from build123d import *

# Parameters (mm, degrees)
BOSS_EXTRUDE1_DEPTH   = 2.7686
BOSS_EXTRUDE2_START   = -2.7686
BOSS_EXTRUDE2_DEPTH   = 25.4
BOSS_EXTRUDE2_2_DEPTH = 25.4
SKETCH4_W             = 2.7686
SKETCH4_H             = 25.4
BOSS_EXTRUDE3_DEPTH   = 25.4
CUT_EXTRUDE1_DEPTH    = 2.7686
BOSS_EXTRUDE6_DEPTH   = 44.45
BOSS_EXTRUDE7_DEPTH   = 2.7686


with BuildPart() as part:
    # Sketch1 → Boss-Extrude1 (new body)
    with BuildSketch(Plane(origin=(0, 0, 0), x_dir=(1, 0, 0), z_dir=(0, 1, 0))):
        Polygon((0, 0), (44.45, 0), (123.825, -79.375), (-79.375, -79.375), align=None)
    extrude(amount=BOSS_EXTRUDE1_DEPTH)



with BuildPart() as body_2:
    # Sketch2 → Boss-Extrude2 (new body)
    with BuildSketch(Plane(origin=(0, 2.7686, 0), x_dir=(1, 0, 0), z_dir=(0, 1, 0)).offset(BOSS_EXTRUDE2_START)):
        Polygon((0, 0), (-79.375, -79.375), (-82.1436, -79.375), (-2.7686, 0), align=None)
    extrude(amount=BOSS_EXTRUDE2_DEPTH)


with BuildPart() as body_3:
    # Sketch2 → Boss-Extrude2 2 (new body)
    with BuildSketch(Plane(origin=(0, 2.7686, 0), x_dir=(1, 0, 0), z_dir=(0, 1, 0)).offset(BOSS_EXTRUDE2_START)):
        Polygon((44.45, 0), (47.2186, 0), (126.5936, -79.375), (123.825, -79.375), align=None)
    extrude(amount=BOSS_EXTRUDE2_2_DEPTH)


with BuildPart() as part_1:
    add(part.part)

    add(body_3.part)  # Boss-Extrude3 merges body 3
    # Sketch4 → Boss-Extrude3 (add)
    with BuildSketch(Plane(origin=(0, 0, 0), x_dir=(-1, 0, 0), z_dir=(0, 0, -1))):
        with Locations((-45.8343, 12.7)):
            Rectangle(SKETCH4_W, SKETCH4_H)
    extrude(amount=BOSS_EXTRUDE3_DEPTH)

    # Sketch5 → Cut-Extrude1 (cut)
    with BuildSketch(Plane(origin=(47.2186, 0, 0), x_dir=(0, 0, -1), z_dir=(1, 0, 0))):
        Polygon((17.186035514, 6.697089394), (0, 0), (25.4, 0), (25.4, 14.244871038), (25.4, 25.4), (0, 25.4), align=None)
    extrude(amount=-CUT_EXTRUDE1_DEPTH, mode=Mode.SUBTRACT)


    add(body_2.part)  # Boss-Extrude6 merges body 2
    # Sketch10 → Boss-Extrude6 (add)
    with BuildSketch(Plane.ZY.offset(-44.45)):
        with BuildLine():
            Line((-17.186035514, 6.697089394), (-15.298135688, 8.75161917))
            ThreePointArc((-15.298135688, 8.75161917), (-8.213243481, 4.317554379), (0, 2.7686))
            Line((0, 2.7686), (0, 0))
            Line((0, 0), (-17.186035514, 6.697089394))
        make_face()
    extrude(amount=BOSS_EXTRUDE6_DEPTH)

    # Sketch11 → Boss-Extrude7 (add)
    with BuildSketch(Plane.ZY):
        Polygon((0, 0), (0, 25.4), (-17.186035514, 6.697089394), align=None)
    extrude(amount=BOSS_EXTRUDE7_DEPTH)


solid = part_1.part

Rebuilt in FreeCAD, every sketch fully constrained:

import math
import FreeCAD as App
import Part
import Sketcher

V = App.Vector
Q = App.Units.Quantity


def add_polygon(sketch, points):
    """Adds a closed chain of lines whose ends are joined by coincident constraints."""
    first, n = sketch.GeometryCount, len(points)
    for a, b in zip(points, points[1:] + points[:1]):
        sketch.addGeometry(Part.LineSegment(App.Vector(*a, 0), App.Vector(*b, 0)), False)
    for i in range(n):
        sketch.addConstraint(Sketcher.Constraint("Coincident", first + i, 2, first + (i + 1) % n, 1))

doc = App.newDocument("Part")
body = doc.addObject("PartDesign::Body", "Body")

sketch1 = body.newObject("Sketcher::SketchObject", "Sketch")
sketch1.AttachmentSupport = (doc.getObject("XZ_Plane"), [""])
sketch1.MapMode = "FlatFace"
add_polygon(sketch1, [(44, 0), (0, 0), (-79, 79), (124, 79)])
sketch1.addConstraint(Sketcher.Constraint("Horizontal", 0))
sketch1.addConstraint(Sketcher.Constraint("Horizontal", 2))
sketch1.addConstraint(Sketcher.Constraint("Coincident", 0, 2, -1, 1))
sketch1.addConstraint(Sketcher.Constraint("Perpendicular", 1, 3))
sketch1.addConstraint(Sketcher.Constraint("Equal", 1, 3))
sketch1.addConstraint(Sketcher.Constraint("DistanceX", 2, 1, 2, 2, Q("8 in")))
sketch1.addConstraint(Sketcher.Constraint("DistanceX", 0, 2, 0, 1, Q("1.75 in")))
pad1 = body.newObject("PartDesign::Pad", "Pad")
pad1.Profile = sketch1
pad1.Length = Q("0.109 in")
pad1.Reversed = True
body2 = doc.addObject("PartDesign::Body", "Body001")

sketch2 = body2.newObject("Sketcher::SketchObject", "Sketch001")
sketch2.AttachmentSupport = (doc.getObject("XZ_Plane001"), [""])
sketch2.MapMode = "FlatFace"
add_polygon(sketch2, [(-79.4, 79.4), (0, 0), (-2.8, 0), (-82.1, 79.4)])
sketch2.addConstraint(Sketcher.Constraint("Horizontal", 1))
sketch2.addConstraint(Sketcher.Constraint("Horizontal", 3))
sketch2.addConstraint(Sketcher.Constraint("Coincident", 0, 2, -1, 1))
sketch2.addConstraint(Sketcher.Constraint("Parallel", 0, 2))
sketch2.addConstraint(Sketcher.Constraint("Angle", 0, Q("-45 deg")))
sketch2.addConstraint(Sketcher.Constraint("DistanceX", 1, 2, 1, 1, Q("0.109 in")))
sketch2.addConstraint(Sketcher.Constraint("DistanceX", 2, 2, -1, 1, Q("3.234 in")))
pad2 = body2.newObject("PartDesign::Pad", "Pad001")
pad2.Profile = sketch2
pad2.Length = Q("1 in")
pad2.Reversed = True
body3 = doc.addObject("PartDesign::Body", "Body002")

sketch3 = body3.newObject("Sketcher::SketchObject", "Sketch002")
sketch3.AttachmentSupport = (doc.getObject("XZ_Plane002"), [""])
sketch3.MapMode = "FlatFace"
add_polygon(sketch3, [(47.2, 0), (44.5, 0), (123.8, 79.4), (126.6, 79.4)])
sketch3.addConstraint(Sketcher.Constraint("Horizontal", 0))
sketch3.addConstraint(Sketcher.Constraint("Horizontal", 2))
sketch3.addConstraint(Sketcher.Constraint("PointOnObject", 0, 2, -1))
sketch3.addConstraint(Sketcher.Constraint("Parallel", 1, 3))
sketch3.addConstraint(Sketcher.Constraint("Angle", 1, Q("45 deg")))
sketch3.addConstraint(Sketcher.Constraint("DistanceX", 0, 2, 0, 1, Q("0.109 in")))
sketch3.addConstraint(Sketcher.Constraint("DistanceX", -1, 1, 0, 2, Q("1.75 in")))
sketch3.addConstraint(Sketcher.Constraint("DistanceX", -1, 1, 1, 2, Q("4.875 in")))
pad3 = body3.newObject("PartDesign::Pad", "Pad002")
pad3.Profile = sketch3
pad3.Length = Q("1 in")
pad3.Reversed = True
doc.recompute()

boolean = body.newObject("PartDesign::Boolean", "Boolean")
boolean.Type = "Fuse"
boolean.addObjects([body3])

sketch4 = body.newObject("Sketcher::SketchObject", "Sketch003")
sketch4.AttachmentSupport = (doc.getObject("XY_Plane"), [""])
sketch4.MapMode = "FlatFace"
add_polygon(sketch4, [(47.2, 25.4), (47.2, 0), (44.5, 0), (44.5, 25.4)])
sketch4.addConstraint(Sketcher.Constraint("Vertical", 0))
sketch4.addConstraint(Sketcher.Constraint("Horizontal", 1))
sketch4.addConstraint(Sketcher.Constraint("Vertical", 2))
sketch4.addConstraint(Sketcher.Constraint("Horizontal", 3))
sketch4.addConstraint(Sketcher.Constraint("PointOnObject", 0, 2, -1))
sketch4.addConstraint(Sketcher.Constraint("DistanceY", 0, 2, 0, 1, Q("1 in")))
sketch4.addConstraint(Sketcher.Constraint("DistanceX", 1, 2, 1, 1, Q("0.109 in")))
sketch4.addConstraint(Sketcher.Constraint("DistanceX", -1, 1, 1, 2, Q("1.75 in")))
pad4 = body.newObject("PartDesign::Pad", "Pad003")
pad4.Profile = sketch4
pad4.Length = Q("1 in")
pad4.Reversed = True

sketch5 = body.newObject("Sketcher::SketchObject", "Sketch004")
sketch5.AttachmentSupport = (doc.getObject("YZ_Plane"), [""])
sketch5.MapMode = "FlatFace"
sketch5.AttachmentOffset = App.Placement(V(0, 0, 1.859 * 25.4), App.Rotation())
add_polygon(sketch5, [(7, -17), (0, 0), (0, -25), (25, -25), (25, 0)])
sketch5.addConstraint(Sketcher.Constraint("Vertical", 1))
sketch5.addConstraint(Sketcher.Constraint("Horizontal", 2))
sketch5.addConstraint(Sketcher.Constraint("Vertical", 3))
sketch5.addConstraint(Sketcher.Constraint("Coincident", 0, 2, -1, 1))
sketch5.addConstraint(Sketcher.Constraint("PointOnObject", 3, 2, -1))
sketch5.addConstraint(Sketcher.Constraint("Equal", 2, 1))
sketch5.addConstraint(Sketcher.Constraint("DistanceX", 2, 1, 2, 2, Q("1 in")))
sketch5.addConstraint(Sketcher.Constraint("DistanceX", -1, 1, 4, 2, 6.697089))
sketch5.addConstraint(Sketcher.Constraint("Distance", 0, 18.444805))
pocket1 = body.newObject("PartDesign::Pocket", "Pocket")
pocket1.Profile = sketch5
pocket1.Length = Q("0.109 in")
doc.recompute()

boolean2 = body.newObject("PartDesign::Boolean", "Boolean001")
boolean2.Type = "Fuse"
boolean2.addObjects([body2])

sketch6 = body.newObject("Sketcher::SketchObject", "Sketch005")
sketch6.AttachmentSupport = (doc.getObject("YZ_Plane"), [""])
sketch6.MapMode = "FlatFace"
sketch6.AttachmentOffset = App.Placement(V(0, 0, 1.75 * 25.4), App.Rotation())
sketch6.addGeometry(Part.LineSegment(V(8.8, -15.3, 0), V(6.7, -17.2, 0)), False)
sketch6.addGeometry(Part.LineSegment(V(6.7, -17.2, 0), V(0, 0, 0)), False)
sketch6.addGeometry(Part.LineSegment(V(0, 0, 0), V(2.8, 0, 0)), False)
sketch6.addGeometry(Part.ArcOfCircle(Part.Circle(V(25.3, 0, 0), V(0, 0, 1), 22.5), math.radians(180), math.radians(223)), False)
sketch6.addConstraint(Sketcher.Constraint("Coincident", 0, 2, 1, 1))
sketch6.addConstraint(Sketcher.Constraint("Coincident", 1, 2, 2, 1))
sketch6.addConstraint(Sketcher.Constraint("Coincident", 2, 2, 3, 1))
sketch6.addConstraint(Sketcher.Constraint("Coincident", 3, 2, 0, 1))
sketch6.addConstraint(Sketcher.Constraint("Horizontal", 2))
sketch6.addConstraint(Sketcher.Constraint("Coincident", 1, 2, -1, 1))
sketch6.addConstraint(Sketcher.Constraint("PointOnObject", 3, 3, -1))
sketch6.addConstraint(Sketcher.Constraint("DistanceX", 2, 1, 2, 2, Q("0.109 in")))
sketch6.addConstraint(Sketcher.Constraint("Radius", 3, 22.549608))
sketch6.addConstraint(Sketcher.Constraint("DistanceY", 0, 2, 3, 2, 1.8879))
sketch6.addConstraint(Sketcher.Constraint("DistanceX", -1, 1, 0, 2, 6.697089))
sketch6.addConstraint(Sketcher.Constraint("DistanceX", -1, 1, 3, 2, 8.751619))
pad5 = body.newObject("PartDesign::Pad", "Pad004")
pad5.Profile = sketch6
pad5.Length = Q("1.75 in")
pad5.Reversed = True

sketch7 = body.newObject("Sketcher::SketchObject", "Sketch006")
sketch7.AttachmentSupport = (doc.getObject("YZ_Plane"), [""])
sketch7.MapMode = "FlatFace"
add_polygon(sketch7, [(0, 0), (25, 0), (7, -17)])
sketch7.addConstraint(Sketcher.Constraint("Horizontal", 0))
sketch7.addConstraint(Sketcher.Constraint("Coincident", 2, 2, -1, 1))
sketch7.addConstraint(Sketcher.Constraint("DistanceX", 0, 1, 0, 2, Q("1 in")))
sketch7.addConstraint(Sketcher.Constraint("DistanceX", -1, 1, 1, 2, 6.697089))
sketch7.addConstraint(Sketcher.Constraint("Distance", 1, 25.399974))
pad6 = body.newObject("PartDesign::Pad", "Pad005")
pad6.Profile = sketch7
pad6.Length = Q("0.109 in")
pad6.Reversed = True

doc.recompute()
